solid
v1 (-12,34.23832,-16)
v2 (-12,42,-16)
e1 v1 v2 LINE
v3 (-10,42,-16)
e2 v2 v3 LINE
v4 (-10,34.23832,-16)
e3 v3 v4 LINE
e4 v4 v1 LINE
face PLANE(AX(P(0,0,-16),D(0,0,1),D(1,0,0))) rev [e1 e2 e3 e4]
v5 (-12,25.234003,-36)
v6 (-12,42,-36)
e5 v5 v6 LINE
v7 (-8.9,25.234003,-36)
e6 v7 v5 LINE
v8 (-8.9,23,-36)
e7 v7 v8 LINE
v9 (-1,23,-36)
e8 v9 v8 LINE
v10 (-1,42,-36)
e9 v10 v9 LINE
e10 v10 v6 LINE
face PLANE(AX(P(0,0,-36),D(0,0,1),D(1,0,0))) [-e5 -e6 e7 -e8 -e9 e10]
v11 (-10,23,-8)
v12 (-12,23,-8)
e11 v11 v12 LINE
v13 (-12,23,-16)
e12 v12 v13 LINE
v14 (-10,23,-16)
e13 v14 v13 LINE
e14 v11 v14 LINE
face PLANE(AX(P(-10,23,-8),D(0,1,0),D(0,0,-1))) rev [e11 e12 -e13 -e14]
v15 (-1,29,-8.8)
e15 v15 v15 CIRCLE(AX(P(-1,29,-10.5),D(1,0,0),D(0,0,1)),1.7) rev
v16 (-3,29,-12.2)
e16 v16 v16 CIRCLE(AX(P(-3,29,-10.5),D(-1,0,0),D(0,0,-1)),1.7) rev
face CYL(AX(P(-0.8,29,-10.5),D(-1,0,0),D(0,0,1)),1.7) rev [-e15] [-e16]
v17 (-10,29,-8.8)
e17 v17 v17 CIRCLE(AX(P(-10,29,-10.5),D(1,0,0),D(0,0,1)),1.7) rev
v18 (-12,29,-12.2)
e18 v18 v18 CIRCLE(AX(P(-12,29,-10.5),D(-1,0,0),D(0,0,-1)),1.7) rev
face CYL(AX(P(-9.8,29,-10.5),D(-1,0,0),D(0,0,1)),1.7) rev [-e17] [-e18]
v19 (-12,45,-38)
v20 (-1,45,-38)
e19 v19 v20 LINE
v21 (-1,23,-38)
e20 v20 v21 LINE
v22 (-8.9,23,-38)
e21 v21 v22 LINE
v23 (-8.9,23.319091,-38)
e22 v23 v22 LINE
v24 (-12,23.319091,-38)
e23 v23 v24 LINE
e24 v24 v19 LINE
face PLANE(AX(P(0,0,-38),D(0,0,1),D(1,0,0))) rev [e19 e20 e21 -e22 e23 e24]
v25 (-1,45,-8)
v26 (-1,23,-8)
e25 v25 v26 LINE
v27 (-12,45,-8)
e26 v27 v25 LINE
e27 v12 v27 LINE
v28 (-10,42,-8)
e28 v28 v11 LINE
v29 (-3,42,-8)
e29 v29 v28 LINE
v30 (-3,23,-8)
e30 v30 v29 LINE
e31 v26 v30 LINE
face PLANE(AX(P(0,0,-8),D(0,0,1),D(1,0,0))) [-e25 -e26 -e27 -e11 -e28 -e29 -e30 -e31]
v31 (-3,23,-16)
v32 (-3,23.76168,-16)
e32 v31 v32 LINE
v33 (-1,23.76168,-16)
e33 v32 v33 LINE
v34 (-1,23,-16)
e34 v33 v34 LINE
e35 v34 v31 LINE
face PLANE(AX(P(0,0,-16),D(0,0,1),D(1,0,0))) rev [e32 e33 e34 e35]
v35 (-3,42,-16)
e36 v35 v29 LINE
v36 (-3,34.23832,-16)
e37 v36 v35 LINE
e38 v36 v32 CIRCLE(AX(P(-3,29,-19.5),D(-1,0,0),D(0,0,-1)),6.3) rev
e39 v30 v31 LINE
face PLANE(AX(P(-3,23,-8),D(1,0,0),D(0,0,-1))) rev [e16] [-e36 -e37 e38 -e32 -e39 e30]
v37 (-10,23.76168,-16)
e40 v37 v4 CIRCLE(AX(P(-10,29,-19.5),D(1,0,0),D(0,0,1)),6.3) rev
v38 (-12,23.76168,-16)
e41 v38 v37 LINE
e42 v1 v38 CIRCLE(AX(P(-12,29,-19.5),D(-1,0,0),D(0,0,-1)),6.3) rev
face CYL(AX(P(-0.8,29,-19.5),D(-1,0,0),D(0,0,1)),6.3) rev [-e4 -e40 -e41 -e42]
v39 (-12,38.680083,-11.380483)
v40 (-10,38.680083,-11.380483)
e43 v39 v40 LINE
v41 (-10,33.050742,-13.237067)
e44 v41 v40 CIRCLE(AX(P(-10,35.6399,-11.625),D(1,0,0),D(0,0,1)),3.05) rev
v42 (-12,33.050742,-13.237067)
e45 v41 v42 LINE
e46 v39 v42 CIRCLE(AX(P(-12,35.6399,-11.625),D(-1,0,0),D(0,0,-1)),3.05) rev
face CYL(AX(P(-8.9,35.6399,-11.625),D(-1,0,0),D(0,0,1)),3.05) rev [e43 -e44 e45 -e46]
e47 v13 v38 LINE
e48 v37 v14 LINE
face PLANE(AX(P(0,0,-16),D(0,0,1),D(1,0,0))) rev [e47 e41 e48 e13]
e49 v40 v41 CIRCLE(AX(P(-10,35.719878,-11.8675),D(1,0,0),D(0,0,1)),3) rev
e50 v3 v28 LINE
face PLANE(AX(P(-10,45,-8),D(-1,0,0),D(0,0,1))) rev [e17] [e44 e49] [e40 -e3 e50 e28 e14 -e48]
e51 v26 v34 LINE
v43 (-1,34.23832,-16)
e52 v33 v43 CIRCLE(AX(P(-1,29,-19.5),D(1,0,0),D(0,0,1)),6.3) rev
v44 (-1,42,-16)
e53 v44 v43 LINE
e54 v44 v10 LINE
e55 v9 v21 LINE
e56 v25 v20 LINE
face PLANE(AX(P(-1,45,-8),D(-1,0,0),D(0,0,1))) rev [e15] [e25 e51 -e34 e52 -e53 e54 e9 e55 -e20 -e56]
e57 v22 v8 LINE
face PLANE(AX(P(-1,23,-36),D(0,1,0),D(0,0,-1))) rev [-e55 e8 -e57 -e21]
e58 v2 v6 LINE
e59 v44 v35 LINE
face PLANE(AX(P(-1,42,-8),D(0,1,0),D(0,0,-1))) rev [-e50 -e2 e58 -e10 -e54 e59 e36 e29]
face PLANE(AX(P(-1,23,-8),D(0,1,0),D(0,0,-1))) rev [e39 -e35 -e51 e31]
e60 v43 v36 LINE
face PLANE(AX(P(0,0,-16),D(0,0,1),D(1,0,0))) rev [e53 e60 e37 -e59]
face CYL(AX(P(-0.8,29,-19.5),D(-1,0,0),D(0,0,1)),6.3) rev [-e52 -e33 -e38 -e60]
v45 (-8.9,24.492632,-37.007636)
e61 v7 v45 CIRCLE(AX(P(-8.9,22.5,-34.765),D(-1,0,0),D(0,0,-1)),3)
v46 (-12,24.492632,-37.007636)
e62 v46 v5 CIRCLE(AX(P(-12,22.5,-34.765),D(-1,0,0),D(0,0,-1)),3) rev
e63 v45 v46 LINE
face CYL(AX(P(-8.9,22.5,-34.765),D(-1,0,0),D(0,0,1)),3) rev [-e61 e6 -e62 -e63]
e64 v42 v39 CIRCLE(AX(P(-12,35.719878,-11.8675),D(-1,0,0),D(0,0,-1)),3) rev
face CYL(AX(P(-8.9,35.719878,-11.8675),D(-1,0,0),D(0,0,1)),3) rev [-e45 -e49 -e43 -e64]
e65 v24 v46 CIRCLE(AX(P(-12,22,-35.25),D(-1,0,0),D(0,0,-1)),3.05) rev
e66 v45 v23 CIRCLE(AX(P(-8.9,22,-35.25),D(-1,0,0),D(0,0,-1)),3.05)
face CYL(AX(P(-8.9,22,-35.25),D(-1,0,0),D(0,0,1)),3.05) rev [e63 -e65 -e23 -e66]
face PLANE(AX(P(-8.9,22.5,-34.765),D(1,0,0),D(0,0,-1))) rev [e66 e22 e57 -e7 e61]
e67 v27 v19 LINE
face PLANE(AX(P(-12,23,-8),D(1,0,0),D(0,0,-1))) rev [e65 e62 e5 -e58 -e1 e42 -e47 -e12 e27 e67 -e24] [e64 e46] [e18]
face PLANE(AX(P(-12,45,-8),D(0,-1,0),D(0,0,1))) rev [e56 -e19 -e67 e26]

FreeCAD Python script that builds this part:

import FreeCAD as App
import Part
import Sketcher
from FreeCAD import Vector


def add_polygon(sketch, points):
    """Adds a closed chain of lines whose ends are joined by coincident constraints."""
    first, n = sketch.GeometryCount, len(points)
    for a, b in zip(points, points[1:] + points[:1]):
        sketch.addGeometry(Part.LineSegment(App.Vector(*a, 0), App.Vector(*b, 0)), False)
    for i in range(n):
        sketch.addConstraint(Sketcher.Constraint("Coincident", first + i, 2, first + (i + 1) % n, 1))

doc = App.newDocument("Part")
params = doc.addObject("Spreadsheet::Sheet", "Params")
for row, (alias, value) in enumerate([
    ("sketch1_width", "2 mm"),
    ("sketch1_height", "22 mm"),
    ("pad1_length", "8 mm"),
    ("sketch2_width", "11 mm"),
    ("sketch2_height", "3 mm"),
    ("pad2_length", "30 mm"),
    ("sketch3_width", "2 mm"),
    ("sketch3_height", "22 mm"),
    ("pad3_length", "8 mm"),
    ("sketch4_width", "11 mm"),
    ("sketch4_height", "22 mm"),
    ("pad4_length", "2 mm"),
    ("sketch5_diameter", "12.6 mm"),
    ("pocket1_length", "11.3 mm"),
    ("sketch6_diameter", "3.4 mm"),
    ("pocket2_length", "2.3 mm"),
    ("sketch7_diameter", "3.4 mm"),
    ("pocket3_length", "2.3 mm"),
    ("sketch8_diameter", "6 mm"),
    ("pocket4_length", "3.2 mm"),
    ("sketch9_diameter", "6 mm"),
    ("pocket5_length", "3.2 mm"),
    ("sketch10_diameter", "6.1 mm"),
    ("pocket6_length", "3.2 mm"),
    ("sketch11_diameter", "6.1 mm"),
    ("pocket7_length", "3.2 mm"),
], start=1):
    params.set(f"A{row}", alias)
    params.set(f"B{row}", "=" + value)
    params.setAlias(f"B{row}", alias)

body = doc.addObject("PartDesign::Body", "Body")

# Sketch on XY plane
sketch1 = body.newObject("Sketcher::SketchObject", "Sketch")
sketch1.AttachmentSupport = (doc.getObject("XY_Plane"), [""])
sketch1.MapMode = "FlatFace"
sketch1.AttachmentOffset = App.Placement(Vector(0, 0, -16), App.Rotation())
add_polygon(sketch1, [(-12, -23), (-12, -45), (-10, -45), (-10, -23)])  # lines 0-3
sketch1.addConstraint(Sketcher.Constraint("Vertical", 0))
sketch1.addConstraint(Sketcher.Constraint("Horizontal", 1))
sketch1.addConstraint(Sketcher.Constraint("Vertical", 2))
sketch1.addConstraint(Sketcher.Constraint("Horizontal", 3))
sketch1.addConstraint(Sketcher.Constraint("DistanceX", 1, 1, 1, 2, 2.0))
sketch1.addConstraint(Sketcher.Constraint("DistanceY", 0, 2, 0, 1, 22.0))
sketch1.addConstraint(Sketcher.Constraint("DistanceX", 0, 2, -1, 1, 12.0))
sketch1.addConstraint(Sketcher.Constraint("DistanceY", 0, 2, -1, 1, 45.0))
sketch1.setExpression("Constraints[8]", "Params.sketch1_width")
sketch1.setExpression("Constraints[9]", "Params.sketch1_height")
pad1 = body.newObject("PartDesign::Pad", "Pad")
pad1.Profile = sketch1
pad1.setExpression("Length", "Params.pad1_length")

# Sketch on XY plane
sketch2 = body.newObject("Sketcher::SketchObject", "Sketch001")
sketch2.AttachmentSupport = (doc.getObject("XY_Plane"), [""])
sketch2.MapMode = "FlatFace"
sketch2.AttachmentOffset = App.Placement(Vector(0, 0, -38), App.Rotation())
add_polygon(sketch2, [(-12, -42), (-12, -45), (-1, -45), (-1, -42)])  # lines 0-3
sketch2.addConstraint(Sketcher.Constraint("Vertical", 0))
sketch2.addConstraint(Sketcher.Constraint("Horizontal", 1))
sketch2.addConstraint(Sketcher.Constraint("Vertical", 2))
sketch2.addConstraint(Sketcher.Constraint("Horizontal", 3))
sketch2.addConstraint(Sketcher.Constraint("DistanceX", 1, 1, 1, 2, 11.0))
sketch2.addConstraint(Sketcher.Constraint("DistanceY", 0, 2, 0, 1, 3.0))
sketch2.addConstraint(Sketcher.Constraint("DistanceX", 0, 2, -1, 1, 12.0))
sketch2.addConstraint(Sketcher.Constraint("DistanceY", 0, 2, -1, 1, 45.0))
sketch2.setExpression("Constraints[8]", "Params.sketch2_width")
sketch2.setExpression("Constraints[9]", "Params.sketch2_height")
pad2 = body.newObject("PartDesign::Pad", "Pad001")
pad2.Profile = sketch2
pad2.setExpression("Length", "Params.pad2_length")

# Sketch on XY plane
sketch3 = body.newObject("Sketcher::SketchObject", "Sketch002")
sketch3.AttachmentSupport = (doc.getObject("XY_Plane"), [""])
sketch3.MapMode = "FlatFace"
sketch3.AttachmentOffset = App.Placement(Vector(0, 0, -16), App.Rotation())
add_polygon(sketch3, [(-3, -23), (-3, -45), (-1, -45), (-1, -23)])  # lines 0-3
sketch3.addConstraint(Sketcher.Constraint("Vertical", 0))
sketch3.addConstraint(Sketcher.Constraint("Horizontal", 1))
sketch3.addConstraint(Sketcher.Constraint("Vertical", 2))
sketch3.addConstraint(Sketcher.Constraint("Horizontal", 3))
sketch3.addConstraint(Sketcher.Constraint("DistanceX", 1, 1, 1, 2, 2.0))
sketch3.addConstraint(Sketcher.Constraint("DistanceY", 0, 2, 0, 1, 22.0))
sketch3.addConstraint(Sketcher.Constraint("DistanceX", 0, 2, -1, 1, 3.0))
sketch3.addConstraint(Sketcher.Constraint("DistanceY", 0, 2, -1, 1, 45.0))
sketch3.setExpression("Constraints[8]", "Params.sketch3_width")
sketch3.setExpression("Constraints[9]", "Params.sketch3_height")
pad3 = body.newObject("PartDesign::Pad", "Pad002")
pad3.Profile = sketch3
pad3.setExpression("Length", "Params.pad3_length")

# Sketch on XY plane
sketch4 = body.newObject("Sketcher::SketchObject", "Sketch003")
sketch4.AttachmentSupport = (doc.getObject("XY_Plane"), [""])
sketch4.MapMode = "FlatFace"
sketch4.AttachmentOffset = App.Placement(Vector(0, 0, -38), App.Rotation())
add_polygon(sketch4, [(-12, -23), (-12, -45), (-1, -45), (-1, -23)])  # lines 0-3
sketch4.addConstraint(Sketcher.Constraint("Vertical", 0))
sketch4.addConstraint(Sketcher.Constraint("Horizontal", 1))
sketch4.addConstraint(Sketcher.Constraint("Vertical", 2))
sketch4.addConstraint(Sketcher.Constraint("Horizontal", 3))
sketch4.addConstraint(Sketcher.Constraint("DistanceX", 1, 1, 1, 2, 11.0))
sketch4.addConstraint(Sketcher.Constraint("DistanceY", 0, 2, 0, 1, 22.0))
sketch4.addConstraint(Sketcher.Constraint("DistanceX", 0, 2, -1, 1, 12.0))
sketch4.addConstraint(Sketcher.Constraint("DistanceY", 0, 2, -1, 1, 45.0))
sketch4.setExpression("Constraints[8]", "Params.sketch4_width")
sketch4.setExpression("Constraints[9]", "Params.sketch4_height")
pad4 = body.newObject("PartDesign::Pad", "Pad003")
pad4.Profile = sketch4
pad4.setExpression("Length", "Params.pad4_length")

# Sketch on YZ plane
sketch5 = body.newObject("Sketcher::SketchObject", "Sketch004")
sketch5.AttachmentSupport = (doc.getObject("YZ_Plane"), [""])
sketch5.MapMode = "FlatFace"
sketch5.AttachmentOffset = App.Placement(Vector(0, 0, -12.1), App.Rotation())
sketch5.addGeometry(Part.Circle(Vector(-29, -19.5, 0), Vector(0, 0, 1), 6.3), False)
sketch5.addConstraint(Sketcher.Constraint("Diameter", 0, 12.6))
sketch5.addConstraint(Sketcher.Constraint("DistanceX", 0, 3, -1, 1, 29.0))
sketch5.addConstraint(Sketcher.Constraint("DistanceY", 0, 3, -1, 1, 19.5))
sketch5.setExpression("Constraints[0]", "Params.sketch5_diameter")
pocket1 = body.newObject("PartDesign::Pocket", "Pocket")
pocket1.Profile = sketch5
pocket1.setExpression("Length", "Params.pocket1_length")
pocket1.Reversed = True

# Sketch on YZ plane
sketch6 = body.newObject("Sketcher::SketchObject", "Sketch005")
sketch6.AttachmentSupport = (doc.getObject("YZ_Plane"), [""])
sketch6.MapMode = "FlatFace"
sketch6.AttachmentOffset = App.Placement(Vector(0, 0, -12.1), App.Rotation())
sketch6.addGeometry(Part.Circle(Vector(-29, -10.5, 0), Vector(0, 0, 1), 1.7), False)
sketch6.addConstraint(Sketcher.Constraint("Diameter", 0, 3.4))
sketch6.addConstraint(Sketcher.Constraint("DistanceX", 0, 3, -1, 1, 29.0))
sketch6.addConstraint(Sketcher.Constraint("DistanceY", 0, 3, -1, 1, 10.5))
sketch6.setExpression("Constraints[0]", "Params.sketch6_diameter")
pocket2 = body.newObject("PartDesign::Pocket", "Pocket001")
pocket2.Profile = sketch6
pocket2.setExpression("Length", "Params.pocket2_length")
pocket2.Reversed = True

# Sketch on YZ plane
sketch7 = body.newObject("Sketcher::SketchObject", "Sketch006")
sketch7.AttachmentSupport = (doc.getObject("YZ_Plane"), [""])
sketch7.MapMode = "FlatFace"
sketch7.AttachmentOffset = App.Placement(Vector(0, 0, -3.1), App.Rotation())
sketch7.addGeometry(Part.Circle(Vector(-29, -10.5, 0), Vector(0, 0, 1), 1.7), False)
sketch7.addConstraint(Sketcher.Constraint("Diameter", 0, 3.4))
sketch7.addConstraint(Sketcher.Constraint("DistanceX", 0, 3, -1, 1, 29.0))
sketch7.addConstraint(Sketcher.Constraint("DistanceY", 0, 3, -1, 1, 10.5))
sketch7.setExpression("Constraints[0]", "Params.sketch7_diameter")
pocket3 = body.newObject("PartDesign::Pocket", "Pocket002")
pocket3.Profile = sketch7
pocket3.setExpression("Length", "Params.pocket3_length")
pocket3.Reversed = True

# Sketch on YZ plane
sketch8 = body.newObject("Sketcher::SketchObject", "Sketch007")
sketch8.AttachmentSupport = (doc.getObject("YZ_Plane"), [""])
sketch8.MapMode = "FlatFace"
sketch8.AttachmentOffset = App.Placement(Vector(0, 0, -12.1), App.Rotation())
sketch8.addGeometry(Part.Circle(Vector(-22.5, -34.765, 0), Vector(0, 0, 1), 3), False)
sketch8.addConstraint(Sketcher.Constraint("Diameter", 0, 6.0))
sketch8.addConstraint(Sketcher.Constraint("DistanceX", 0, 3, -1, 1, 22.5))
sketch8.addConstraint(Sketcher.Constraint("DistanceY", 0, 3, -1, 1, 34.765))
sketch8.setExpression("Constraints[0]", "Params.sketch8_diameter")
pocket4 = body.newObject("PartDesign::Pocket", "Pocket003")
pocket4.Profile = sketch8
pocket4.setExpression("Length", "Params.pocket4_length")
pocket4.Reversed = True

# Sketch on YZ plane
sketch9 = body.newObject("Sketcher::SketchObject", "Sketch008")
sketch9.AttachmentSupport = (doc.getObject("YZ_Plane"), [""])
sketch9.MapMode = "FlatFace"
sketch9.AttachmentOffset = App.Placement(Vector(0, 0, -12.1), App.Rotation())
sketch9.addGeometry(Part.Circle(Vector(-35.719878, -11.8675, 0), Vector(0, 0, 1), 3), False)
sketch9.addConstraint(Sketcher.Constraint("Diameter", 0, 6.0))
sketch9.addConstraint(Sketcher.Constraint("DistanceY", 0, 3, -1, 1, 11.8675))
sketch9.addConstraint(Sketcher.Constraint("DistanceX", 0, 3, -1, 1, 35.719878))
sketch9.setExpression("Constraints[0]", "Params.sketch9_diameter")
pocket5 = body.newObject("PartDesign::Pocket", "Pocket004")
pocket5.Profile = sketch9
pocket5.setExpression("Length", "Params.pocket5_length")
pocket5.Reversed = True

# Sketch on YZ plane
sketch10 = body.newObject("Sketcher::SketchObject", "Sketch009")
sketch10.AttachmentSupport = (doc.getObject("YZ_Plane"), [""])
sketch10.MapMode = "FlatFace"
sketch10.AttachmentOffset = App.Placement(Vector(0, 0, -12.1), App.Rotation())
sketch10.addGeometry(Part.Circle(Vector(-22, -35.25, 0), Vector(0, 0, 1), 3.05), False)
sketch10.addConstraint(Sketcher.Constraint("Diameter", 0, 6.1))
sketch10.addConstraint(Sketcher.Constraint("DistanceX", 0, 3, -1, 1, 22.0))
sketch10.addConstraint(Sketcher.Constraint("DistanceY", 0, 3, -1, 1, 35.25))
sketch10.setExpression("Constraints[0]", "Params.sketch10_diameter")
pocket6 = body.newObject("PartDesign::Pocket", "Pocket005")
pocket6.Profile = sketch10
pocket6.setExpression("Length", "Params.pocket6_length")
pocket6.Reversed = True

# Sketch on YZ plane
sketch11 = body.newObject("Sketcher::SketchObject", "Sketch010")
sketch11.AttachmentSupport = (doc.getObject("YZ_Plane"), [""])
sketch11.MapMode = "FlatFace"
sketch11.AttachmentOffset = App.Placement(Vector(0, 0, -12.1), App.Rotation())
sketch11.addGeometry(Part.Circle(Vector(-35.6399, -11.625, 0), Vector(0, 0, 1), 3.05), False)
sketch11.addConstraint(Sketcher.Constraint("Diameter", 0, 6.1))
sketch11.addConstraint(Sketcher.Constraint("DistanceY", 0, 3, -1, 1, 11.625))
sketch11.addConstraint(Sketcher.Constraint("DistanceX", 0, 3, -1, 1, 35.6399))
sketch11.setExpression("Constraints[0]", "Params.sketch11_diameter")
pocket7 = body.newObject("PartDesign::Pocket", "Pocket006")
pocket7.Profile = sketch11
pocket7.setExpression("Length", "Params.pocket7_length")
pocket7.Reversed = True
body2 = doc.addObject("PartDesign::Body", "Body001")
doc.recompute()

mirroring = doc.addObject("Part::Mirroring", "Mirroring")
mirroring.Source = body
mirroring.Base = Vector(0, 0, 0)
mirroring.Normal = Vector(0, -1, 0)
body2.BaseFeature = mirroring
doc.recompute()
body.Visibility = False
mirroring.Visibility = False

doc.recompute()
